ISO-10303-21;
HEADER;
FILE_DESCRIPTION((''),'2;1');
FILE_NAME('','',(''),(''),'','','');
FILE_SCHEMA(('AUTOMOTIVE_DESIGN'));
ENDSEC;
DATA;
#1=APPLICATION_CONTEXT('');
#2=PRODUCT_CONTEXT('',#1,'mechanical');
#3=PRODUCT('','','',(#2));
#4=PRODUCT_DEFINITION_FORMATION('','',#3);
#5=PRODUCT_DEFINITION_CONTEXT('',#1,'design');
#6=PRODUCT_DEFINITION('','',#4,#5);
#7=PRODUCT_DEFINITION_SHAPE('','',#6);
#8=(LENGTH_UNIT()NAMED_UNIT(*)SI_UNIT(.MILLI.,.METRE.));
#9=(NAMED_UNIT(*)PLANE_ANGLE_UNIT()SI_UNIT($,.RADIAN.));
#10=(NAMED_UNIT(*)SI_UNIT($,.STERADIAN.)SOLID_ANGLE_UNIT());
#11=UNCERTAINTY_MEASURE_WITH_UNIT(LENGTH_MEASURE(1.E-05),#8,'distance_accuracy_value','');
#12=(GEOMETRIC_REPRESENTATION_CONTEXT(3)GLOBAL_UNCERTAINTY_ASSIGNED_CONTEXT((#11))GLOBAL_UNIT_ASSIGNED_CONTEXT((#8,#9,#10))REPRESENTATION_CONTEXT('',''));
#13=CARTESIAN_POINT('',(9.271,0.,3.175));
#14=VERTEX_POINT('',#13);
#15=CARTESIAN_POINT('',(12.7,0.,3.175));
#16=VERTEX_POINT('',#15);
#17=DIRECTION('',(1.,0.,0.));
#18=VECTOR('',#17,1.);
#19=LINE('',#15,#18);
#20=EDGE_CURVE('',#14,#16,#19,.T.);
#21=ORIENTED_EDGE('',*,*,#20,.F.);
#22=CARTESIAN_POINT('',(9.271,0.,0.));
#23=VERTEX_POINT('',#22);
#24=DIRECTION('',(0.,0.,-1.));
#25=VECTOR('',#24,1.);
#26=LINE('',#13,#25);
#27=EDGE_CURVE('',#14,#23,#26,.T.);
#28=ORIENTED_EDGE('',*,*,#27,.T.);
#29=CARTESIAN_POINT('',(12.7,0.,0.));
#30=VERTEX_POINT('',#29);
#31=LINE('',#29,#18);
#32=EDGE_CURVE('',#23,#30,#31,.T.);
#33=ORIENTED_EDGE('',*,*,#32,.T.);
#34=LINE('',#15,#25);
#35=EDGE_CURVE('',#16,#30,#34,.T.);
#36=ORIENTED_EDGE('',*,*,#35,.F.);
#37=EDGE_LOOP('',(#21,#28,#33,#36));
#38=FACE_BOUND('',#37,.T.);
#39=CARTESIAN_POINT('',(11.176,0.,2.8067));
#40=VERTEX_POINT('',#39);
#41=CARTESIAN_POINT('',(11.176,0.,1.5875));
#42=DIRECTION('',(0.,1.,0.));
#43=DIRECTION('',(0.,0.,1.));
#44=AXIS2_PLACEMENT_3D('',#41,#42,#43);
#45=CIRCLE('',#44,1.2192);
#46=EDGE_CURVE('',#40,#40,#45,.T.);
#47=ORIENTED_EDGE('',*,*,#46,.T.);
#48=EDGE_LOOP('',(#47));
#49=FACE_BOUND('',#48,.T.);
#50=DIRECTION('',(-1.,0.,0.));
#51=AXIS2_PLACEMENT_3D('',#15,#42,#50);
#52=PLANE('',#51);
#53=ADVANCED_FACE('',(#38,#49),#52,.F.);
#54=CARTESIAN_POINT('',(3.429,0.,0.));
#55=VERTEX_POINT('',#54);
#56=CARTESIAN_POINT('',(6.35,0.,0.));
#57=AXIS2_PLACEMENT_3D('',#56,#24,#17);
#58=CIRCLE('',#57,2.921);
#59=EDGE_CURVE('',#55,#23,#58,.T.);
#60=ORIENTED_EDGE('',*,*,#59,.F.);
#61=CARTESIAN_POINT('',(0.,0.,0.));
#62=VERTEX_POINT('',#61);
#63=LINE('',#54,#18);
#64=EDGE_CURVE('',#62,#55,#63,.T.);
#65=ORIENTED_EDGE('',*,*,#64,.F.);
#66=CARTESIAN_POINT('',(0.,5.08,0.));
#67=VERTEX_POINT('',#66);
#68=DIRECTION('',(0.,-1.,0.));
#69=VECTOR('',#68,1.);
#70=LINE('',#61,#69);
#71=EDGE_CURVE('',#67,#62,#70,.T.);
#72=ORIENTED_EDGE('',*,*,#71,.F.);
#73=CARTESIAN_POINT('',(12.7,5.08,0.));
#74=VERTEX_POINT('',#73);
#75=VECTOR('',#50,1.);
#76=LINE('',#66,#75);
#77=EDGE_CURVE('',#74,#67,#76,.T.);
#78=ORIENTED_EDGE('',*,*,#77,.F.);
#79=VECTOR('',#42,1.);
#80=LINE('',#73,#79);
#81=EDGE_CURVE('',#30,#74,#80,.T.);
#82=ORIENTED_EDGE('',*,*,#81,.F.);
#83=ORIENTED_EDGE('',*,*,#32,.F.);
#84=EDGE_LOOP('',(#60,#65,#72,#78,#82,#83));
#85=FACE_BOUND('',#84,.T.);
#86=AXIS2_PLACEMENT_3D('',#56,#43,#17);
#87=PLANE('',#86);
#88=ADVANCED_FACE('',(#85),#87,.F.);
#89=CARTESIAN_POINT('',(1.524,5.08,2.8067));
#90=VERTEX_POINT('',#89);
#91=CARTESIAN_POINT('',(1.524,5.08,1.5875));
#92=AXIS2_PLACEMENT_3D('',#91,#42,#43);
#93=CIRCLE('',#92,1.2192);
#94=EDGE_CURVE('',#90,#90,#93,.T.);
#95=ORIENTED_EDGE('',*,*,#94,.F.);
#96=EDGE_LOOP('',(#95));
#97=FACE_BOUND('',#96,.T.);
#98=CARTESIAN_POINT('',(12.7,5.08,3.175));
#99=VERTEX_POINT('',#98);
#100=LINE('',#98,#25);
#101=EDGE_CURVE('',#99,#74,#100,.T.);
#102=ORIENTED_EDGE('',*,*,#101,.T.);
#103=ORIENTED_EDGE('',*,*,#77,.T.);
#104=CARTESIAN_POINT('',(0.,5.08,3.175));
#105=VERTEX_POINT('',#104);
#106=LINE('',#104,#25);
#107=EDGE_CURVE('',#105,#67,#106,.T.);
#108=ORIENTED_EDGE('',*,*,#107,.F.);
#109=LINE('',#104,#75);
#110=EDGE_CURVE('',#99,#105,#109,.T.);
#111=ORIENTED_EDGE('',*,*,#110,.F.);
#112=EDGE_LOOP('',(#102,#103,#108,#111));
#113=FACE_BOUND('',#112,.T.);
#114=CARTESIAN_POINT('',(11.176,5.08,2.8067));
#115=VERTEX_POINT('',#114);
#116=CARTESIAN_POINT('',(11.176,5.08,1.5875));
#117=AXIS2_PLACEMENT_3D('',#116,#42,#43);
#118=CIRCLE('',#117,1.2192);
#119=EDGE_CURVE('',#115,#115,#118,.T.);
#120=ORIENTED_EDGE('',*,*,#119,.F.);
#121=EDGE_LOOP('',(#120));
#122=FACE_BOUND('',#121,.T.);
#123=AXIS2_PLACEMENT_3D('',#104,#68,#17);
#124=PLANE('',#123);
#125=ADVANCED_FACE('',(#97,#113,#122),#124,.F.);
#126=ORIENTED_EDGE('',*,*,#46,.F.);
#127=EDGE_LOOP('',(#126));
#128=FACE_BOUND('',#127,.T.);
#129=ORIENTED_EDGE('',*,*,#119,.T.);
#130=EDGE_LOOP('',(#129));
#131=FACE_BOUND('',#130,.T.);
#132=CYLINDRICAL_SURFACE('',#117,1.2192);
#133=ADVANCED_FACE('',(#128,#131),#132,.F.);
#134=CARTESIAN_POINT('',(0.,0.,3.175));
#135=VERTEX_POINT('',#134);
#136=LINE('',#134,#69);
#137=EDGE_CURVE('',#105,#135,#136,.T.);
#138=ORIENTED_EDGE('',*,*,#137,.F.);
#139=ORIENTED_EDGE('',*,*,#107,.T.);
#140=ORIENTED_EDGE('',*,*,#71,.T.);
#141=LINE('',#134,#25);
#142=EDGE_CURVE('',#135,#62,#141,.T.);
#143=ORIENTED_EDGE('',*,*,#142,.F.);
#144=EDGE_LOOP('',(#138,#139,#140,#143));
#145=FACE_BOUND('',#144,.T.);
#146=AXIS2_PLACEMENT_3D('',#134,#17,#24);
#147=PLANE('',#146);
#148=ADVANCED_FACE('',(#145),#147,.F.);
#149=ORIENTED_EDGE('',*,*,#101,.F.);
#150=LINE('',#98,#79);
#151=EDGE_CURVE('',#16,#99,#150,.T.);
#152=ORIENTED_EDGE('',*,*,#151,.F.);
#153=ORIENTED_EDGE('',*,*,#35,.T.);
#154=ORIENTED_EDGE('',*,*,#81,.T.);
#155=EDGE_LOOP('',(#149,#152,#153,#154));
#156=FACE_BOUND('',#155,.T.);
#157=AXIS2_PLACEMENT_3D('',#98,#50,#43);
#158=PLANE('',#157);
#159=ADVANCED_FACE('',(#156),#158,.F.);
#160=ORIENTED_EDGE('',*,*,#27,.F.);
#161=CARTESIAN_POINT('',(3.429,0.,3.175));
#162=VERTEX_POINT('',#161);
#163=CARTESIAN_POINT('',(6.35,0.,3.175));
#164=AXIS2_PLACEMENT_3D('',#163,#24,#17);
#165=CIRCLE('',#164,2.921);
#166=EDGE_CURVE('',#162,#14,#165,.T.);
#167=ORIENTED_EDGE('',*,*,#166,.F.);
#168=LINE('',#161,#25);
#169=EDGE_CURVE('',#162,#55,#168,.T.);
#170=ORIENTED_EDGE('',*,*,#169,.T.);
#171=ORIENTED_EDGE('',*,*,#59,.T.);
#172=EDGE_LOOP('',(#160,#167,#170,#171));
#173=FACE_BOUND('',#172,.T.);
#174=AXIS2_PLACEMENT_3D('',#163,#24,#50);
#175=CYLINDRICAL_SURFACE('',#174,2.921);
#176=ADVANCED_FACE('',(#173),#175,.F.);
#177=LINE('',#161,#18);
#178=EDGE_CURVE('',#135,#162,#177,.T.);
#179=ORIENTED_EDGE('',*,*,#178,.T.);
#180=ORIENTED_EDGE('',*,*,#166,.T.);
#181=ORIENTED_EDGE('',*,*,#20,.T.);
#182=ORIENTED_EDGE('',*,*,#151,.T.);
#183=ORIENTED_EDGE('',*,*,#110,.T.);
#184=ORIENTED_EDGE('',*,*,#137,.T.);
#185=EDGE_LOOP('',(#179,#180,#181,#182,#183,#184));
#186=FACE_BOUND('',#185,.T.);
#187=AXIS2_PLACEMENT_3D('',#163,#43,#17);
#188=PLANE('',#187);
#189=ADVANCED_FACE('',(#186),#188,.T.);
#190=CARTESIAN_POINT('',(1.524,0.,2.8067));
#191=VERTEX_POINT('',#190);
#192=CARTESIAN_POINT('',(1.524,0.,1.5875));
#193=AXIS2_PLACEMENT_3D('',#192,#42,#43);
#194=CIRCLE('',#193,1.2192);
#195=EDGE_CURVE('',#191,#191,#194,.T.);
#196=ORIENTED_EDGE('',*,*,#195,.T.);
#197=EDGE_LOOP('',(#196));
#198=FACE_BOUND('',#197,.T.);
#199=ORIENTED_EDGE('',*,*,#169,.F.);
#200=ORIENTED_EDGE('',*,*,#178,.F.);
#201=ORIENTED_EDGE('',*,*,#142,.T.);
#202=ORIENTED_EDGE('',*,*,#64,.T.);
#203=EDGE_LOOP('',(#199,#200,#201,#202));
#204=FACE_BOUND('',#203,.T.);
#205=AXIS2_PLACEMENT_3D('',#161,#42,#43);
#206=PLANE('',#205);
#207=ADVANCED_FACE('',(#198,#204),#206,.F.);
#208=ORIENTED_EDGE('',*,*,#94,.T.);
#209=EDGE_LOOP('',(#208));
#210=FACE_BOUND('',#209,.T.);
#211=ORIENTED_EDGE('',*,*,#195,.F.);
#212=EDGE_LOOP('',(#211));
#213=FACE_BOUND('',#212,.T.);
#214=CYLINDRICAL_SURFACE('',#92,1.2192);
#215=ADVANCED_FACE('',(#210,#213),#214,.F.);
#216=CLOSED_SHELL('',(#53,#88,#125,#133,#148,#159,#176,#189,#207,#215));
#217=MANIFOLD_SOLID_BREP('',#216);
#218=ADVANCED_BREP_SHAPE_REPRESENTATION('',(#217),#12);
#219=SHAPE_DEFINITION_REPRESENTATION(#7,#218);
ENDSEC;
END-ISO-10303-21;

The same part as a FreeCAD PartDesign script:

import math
import FreeCAD as App
import Part
import Sketcher
from FreeCAD import Vector
Q = App.Units.Quantity

doc = App.newDocument("Part")
params = doc.addObject("Spreadsheet::Sheet", "Params")
for row, (alias, value) in enumerate([
    ("sketch1_width", "0.5 in"),
    ("sketch1_height", "0.2 in"),
    ("sketch1_radius", "0.115 in"),
    ("pad1_length", "0.125 in"),
    ("sketch2_diameter", "0.096 in"),
    ("hole_diameter", "0.096 in"),
], start=1):
    params.set(f"A{row}", alias)
    params.set(f"B{row}", "=" + value)
    params.setAlias(f"B{row}", alias)

body = doc.addObject("PartDesign::Body", "Body")

# Sketch on XY plane
sketch1 = doc.addObject("Sketcher::SketchObject", "Sketch")
body.addObject(sketch1)
sketch1.AttachmentSupport = (doc.XY_Plane, [""])
sketch1.MapMode = "FlatFace"
sketch1.addGeometry(Part.LineSegment(Vector(0, 0, 0), Vector(3.4, 0, 0)), False)
sketch1.addGeometry(Part.ArcOfCircle(Part.Circle(Vector(6.3, 0, 0), Vector(0, 0, 1), 2.9), math.radians(0), math.radians(180)), False)
sketch1.addGeometry(Part.LineSegment(Vector(9.3, 0, 0), Vector(12.7, 0, 0)), False)
sketch1.addGeometry(Part.LineSegment(Vector(12.7, 0, 0), Vector(12.7, 5.1, 0)), False)
sketch1.addGeometry(Part.LineSegment(Vector(12.7, 5.1, 0), Vector(0, 5.1, 0)), False)
sketch1.addGeometry(Part.LineSegment(Vector(0, 5.1, 0), Vector(0, 0, 0)), False)
sketch1.addConstraint(Sketcher.Constraint("Coincident", 0, 2, 1, 2))
sketch1.addConstraint(Sketcher.Constraint("Coincident", 1, 1, 2, 1))
sketch1.addConstraint(Sketcher.Constraint("Coincident", 2, 2, 3, 1))
sketch1.addConstraint(Sketcher.Constraint("Coincident", 3, 2, 4, 1))
sketch1.addConstraint(Sketcher.Constraint("Coincident", 4, 2, 5, 1))
sketch1.addConstraint(Sketcher.Constraint("Coincident", 5, 2, 0, 1))
sketch1.addConstraint(Sketcher.Constraint("Horizontal", 0))
sketch1.addConstraint(Sketcher.Constraint("Horizontal", 2))
sketch1.addConstraint(Sketcher.Constraint("Vertical", 3))
sketch1.addConstraint(Sketcher.Constraint("Horizontal", 4))
sketch1.addConstraint(Sketcher.Constraint("Vertical", 5))
sketch1.addConstraint(Sketcher.Constraint("Coincident", 5, 2, -1, 1))
sketch1.addConstraint(Sketcher.Constraint("PointOnObject", 1, 3, -1))
sketch1.addConstraint(Sketcher.Constraint("PointOnObject", 1, 1, -1))
sketch1.addConstraint(Sketcher.Constraint("Equal", 0, 2))
sketch1.addConstraint(Sketcher.Constraint("DistanceX", 4, 2, 4, 1, Q("0.5 in")))
sketch1.addConstraint(Sketcher.Constraint("DistanceY", 3, 1, 3, 2, Q("0.2 in")))
sketch1.addConstraint(Sketcher.Constraint("Radius", 1, Q("0.115 in")))
sketch1.setExpression("Constraints[15]", "Params.sketch1_width")
sketch1.setExpression("Constraints[16]", "Params.sketch1_height")
sketch1.setExpression("Constraints[17]", "Params.sketch1_radius")
pad1 = doc.addObject("PartDesign::Pad", "Pad")
body.addObject(pad1)
pad1.Profile = sketch1
pad1.setExpression("Length", "Params.pad1_length")

# Sketch on XZ plane
sketch2 = doc.addObject("Sketcher::SketchObject", "Sketch001")
body.addObject(sketch2)
sketch2.AttachmentSupport = (doc.XZ_Plane, [""])
sketch2.MapMode = "FlatFace"
sketch2.AttachmentOffset = App.Placement(Vector(0, 0, -0.2 * 25.4), App.Rotation())
sketch2.addGeometry(Part.Circle(Vector(1.5, 1.6, 0), Vector(0, 0, 1), 1.2), False)
sketch2.addGeometry(Part.Circle(Vector(11.2, 1.6, 0), Vector(0, 0, 1), 1.2), False)
sketch2.addConstraint(Sketcher.Constraint("Equal", 0, 1))
sketch2.addConstraint(Sketcher.Constraint("Horizontal", 0, 3, 1, 3))
sketch2.addConstraint(Sketcher.Constraint("Diameter", 0, Q("0.096 in")))
sketch2.addConstraint(Sketcher.Constraint("DistanceX", -1, 1, 0, 3, Q("0.06 in")))
sketch2.addConstraint(Sketcher.Constraint("DistanceX", -1, 1, 1, 3, Q("0.44 in")))
sketch2.addConstraint(Sketcher.Constraint("DistanceY", -1, 1, 0, 3, Q("0.0625 in")))
sketch2.setExpression("Constraints[2]", "Params.sketch2_diameter")
doc.recompute()
hole = doc.addObject("PartDesign::Hole", "Hole")
body.addObject(hole)
hole.Profile = sketch2
hole.ThreadType = "None"
hole.setExpression("Diameter", "Params.hole_diameter")
hole.DepthType = "ThroughAll"
hole.Reversed = True

doc.recompute()
